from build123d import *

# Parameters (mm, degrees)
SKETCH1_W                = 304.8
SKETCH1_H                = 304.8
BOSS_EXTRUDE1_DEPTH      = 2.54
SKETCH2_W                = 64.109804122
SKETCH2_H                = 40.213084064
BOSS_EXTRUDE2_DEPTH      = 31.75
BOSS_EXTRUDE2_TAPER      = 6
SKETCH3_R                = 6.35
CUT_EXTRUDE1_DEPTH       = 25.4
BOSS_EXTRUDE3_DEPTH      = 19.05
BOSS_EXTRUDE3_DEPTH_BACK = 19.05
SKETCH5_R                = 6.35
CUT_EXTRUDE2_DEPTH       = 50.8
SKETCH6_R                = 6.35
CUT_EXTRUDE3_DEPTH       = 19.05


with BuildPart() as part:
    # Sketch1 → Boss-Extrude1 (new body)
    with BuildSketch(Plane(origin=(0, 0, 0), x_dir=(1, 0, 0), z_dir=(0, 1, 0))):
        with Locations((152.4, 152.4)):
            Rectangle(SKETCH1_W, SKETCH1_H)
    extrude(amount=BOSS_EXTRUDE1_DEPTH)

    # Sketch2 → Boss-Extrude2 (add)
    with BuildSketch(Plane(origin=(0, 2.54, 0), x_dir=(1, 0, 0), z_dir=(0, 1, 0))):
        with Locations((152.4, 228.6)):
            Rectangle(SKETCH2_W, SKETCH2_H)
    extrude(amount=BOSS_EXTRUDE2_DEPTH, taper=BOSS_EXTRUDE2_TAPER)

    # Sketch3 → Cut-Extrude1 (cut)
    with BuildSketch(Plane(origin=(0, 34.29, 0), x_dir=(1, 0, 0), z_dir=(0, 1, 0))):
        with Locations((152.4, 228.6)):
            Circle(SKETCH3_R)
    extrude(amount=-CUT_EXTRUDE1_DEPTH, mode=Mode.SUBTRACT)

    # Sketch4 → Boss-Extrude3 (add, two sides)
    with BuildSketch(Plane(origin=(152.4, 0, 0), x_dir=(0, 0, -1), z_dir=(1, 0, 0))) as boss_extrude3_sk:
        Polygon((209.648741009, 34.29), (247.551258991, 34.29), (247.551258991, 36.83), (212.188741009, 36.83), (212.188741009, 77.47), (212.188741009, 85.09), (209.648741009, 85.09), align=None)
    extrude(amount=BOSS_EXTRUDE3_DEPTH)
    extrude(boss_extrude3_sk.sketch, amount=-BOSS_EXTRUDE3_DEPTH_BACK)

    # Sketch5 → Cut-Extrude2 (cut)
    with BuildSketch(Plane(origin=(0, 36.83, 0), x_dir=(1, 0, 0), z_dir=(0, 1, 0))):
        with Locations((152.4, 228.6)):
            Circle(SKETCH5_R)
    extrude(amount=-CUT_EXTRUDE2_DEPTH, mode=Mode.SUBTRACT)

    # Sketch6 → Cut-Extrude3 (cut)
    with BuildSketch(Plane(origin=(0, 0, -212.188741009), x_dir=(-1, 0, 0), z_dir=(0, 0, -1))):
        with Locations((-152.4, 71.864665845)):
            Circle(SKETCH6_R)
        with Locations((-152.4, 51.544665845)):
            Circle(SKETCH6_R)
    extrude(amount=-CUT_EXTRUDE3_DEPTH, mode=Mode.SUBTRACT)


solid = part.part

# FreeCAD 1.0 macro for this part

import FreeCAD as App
import Part
import Sketcher

V = App.Vector
Q = App.Units.Quantity

doc = App.newDocument("Part")
params = doc.addObject("Spreadsheet::Sheet", "Params")
for row, (alias, value) in enumerate([
    ("sketch1_width", "12 in"),
    ("pad1_length", "0.1 in"),
    ("pad2_length", "1.25 in"),
    ("pad2_taper", "-6 deg"),
    ("sketch3_diameter", "0.5 in"),
    ("pocket1_length", "1 in"),
    ("sketch4_width", "2 in"),
    ("sketch4_width2", "0.1 in"),
    ("pad3_length", "0.75 in"),
    ("pad3_length2", "0.75 in"),
    ("sketch5_diameter", "0.5 in"),
    ("pocket2_length", "2 in"),
    ("sketch6_diameter", "0.5 in"),
    ("pocket3_length", "0.75 in"),
], start=1):
    params.set(f"A{row}", alias)
    params.set(f"B{row}", "=" + value)
    params.setAlias(f"B{row}", alias)

body = doc.addObject("PartDesign::Body", "Body")

sketch1 = doc.addObject("Sketcher::SketchObject", "Sketch")
body.addObject(sketch1)
sketch1.AttachmentSupport = (doc.XZ_Plane, [""])
sketch1.MapMode = "FlatFace"
sketch1.addGeometry(Part.LineSegment(V(0, -304.8, 0), V(0, 0, 0)), False)
sketch1.addGeometry(Part.LineSegment(V(0, 0, 0), V(304.8, 0, 0)), False)
sketch1.addGeometry(Part.LineSegment(V(304.8, 0, 0), V(304.8, -304.8, 0)), False)
sketch1.addGeometry(Part.LineSegment(V(304.8, -304.8, 0), V(0, -304.8, 0)), False)
sketch1.addConstraint(Sketcher.Constraint("Coincident", 0, 2, 1, 1))
sketch1.addConstraint(Sketcher.Constraint("Coincident", 1, 2, 2, 1))
sketch1.addConstraint(Sketcher.Constraint("Coincident", 2, 2, 3, 1))
sketch1.addConstraint(Sketcher.Constraint("Coincident", 3, 2, 0, 1))
sketch1.addConstraint(Sketcher.Constraint("Vertical", 0))
sketch1.addConstraint(Sketcher.Constraint("Horizontal", 1))
sketch1.addConstraint(Sketcher.Constraint("Vertical", 2))
sketch1.addConstraint(Sketcher.Constraint("Horizontal", 3))
sketch1.addConstraint(Sketcher.Constraint("Coincident", 0, 2, -1, 1))
sketch1.addConstraint(Sketcher.Constraint("Equal", 3, 0))
sketch1.addConstraint(Sketcher.Constraint("DistanceX", 1, 1, 1, 2, Q("12 in")))
sketch1.setExpression("Constraints[10]", "Params.sketch1_width")
pad1 = doc.addObject("PartDesign::Pad", "Pad")
body.addObject(pad1)
pad1.Profile = sketch1
pad1.setExpression("Length", "Params.pad1_length")
pad1.Reversed = True

sketch2 = doc.addObject("Sketcher::SketchObject", "Sketch001")
body.addObject(sketch2)
sketch2.AttachmentSupport = (doc.XZ_Plane, [""])
sketch2.MapMode = "FlatFace"
sketch2.AttachmentOffset = App.Placement(V(0, 0, -0.1 * 25.4), App.Rotation())
sketch2.addGeometry(Part.LineSegment(V(120.345098, -248.706542, 0), V(120.345098, -208.493458, 0)), False)
sketch2.addGeometry(Part.LineSegment(V(120.345098, -208.493458, 0), V(184.454902, -208.493458, 0)), False)
sketch2.addGeometry(Part.LineSegment(V(184.454902, -208.493458, 0), V(184.454902, -248.706542, 0)), False)
sketch2.addGeometry(Part.LineSegment(V(184.454902, -248.706542, 0), V(120.345098, -248.706542, 0)), False)
sketch2.addConstraint(Sketcher.Constraint("Coincident", 0, 2, 1, 1))
sketch2.addConstraint(Sketcher.Constraint("Coincident", 1, 2, 2, 1))
sketch2.addConstraint(Sketcher.Constraint("Coincident", 2, 2, 3, 1))
sketch2.addConstraint(Sketcher.Constraint("Coincident", 3, 2, 0, 1))
sketch2.addConstraint(Sketcher.Constraint("Vertical", 0))
sketch2.addConstraint(Sketcher.Constraint("Horizontal", 1))
sketch2.addConstraint(Sketcher.Constraint("Vertical", 2))
sketch2.addConstraint(Sketcher.Constraint("Horizontal", 3))
sketch2.addConstraint(Sketcher.Constraint("DistanceX", 1, 1, 1, 2, Q("64.109804 mm")))
sketch2.addConstraint(Sketcher.Constraint("DistanceY", 0, 1, 0, 2, Q("40.213084 mm")))
sketch2.addConstraint(Sketcher.Constraint("DistanceX", -1, 1, 0, 2, Q("120.345098 mm")))
sketch2.addConstraint(Sketcher.Constraint("DistanceY", 0, 2, -1, 1, Q("208.493458 mm")))
pad2 = doc.addObject("PartDesign::Pad", "Pad001")
body.addObject(pad2)
pad2.Profile = sketch2
pad2.setExpression("Length", "Params.pad2_length")
pad2.Reversed = True
pad2.setExpression("TaperAngle", "Params.pad2_taper")

sketch3 = doc.addObject("Sketcher::SketchObject", "Sketch002")
body.addObject(sketch3)
sketch3.AttachmentSupport = (doc.XZ_Plane, [""])
sketch3.MapMode = "FlatFace"
sketch3.AttachmentOffset = App.Placement(V(0, 0, -1.35 * 25.4), App.Rotation())
sketch3.addGeometry(Part.Circle(V(152.4, -228.6, 0), V(0, 0, 1), 6.35), False)
sketch3.addConstraint(Sketcher.Constraint("Diameter", 0, Q("0.5 in")))
sketch3.addConstraint(Sketcher.Constraint("DistanceX", -1, 1, 0, 3, Q("6 in")))
sketch3.addConstraint(Sketcher.Constraint("DistanceY", 0, 3, -1, 1, Q("9 in")))
sketch3.setExpression("Constraints[0]", "Params.sketch3_diameter")
pocket1 = doc.addObject("PartDesign::Pocket", "Pocket")
body.addObject(pocket1)
pocket1.Profile = sketch3
pocket1.setExpression("Length", "Params.pocket1_length")
pocket1.Reversed = True

sketch4 = doc.addObject("Sketcher::SketchObject", "Sketch003")
body.addObject(sketch4)
sketch4.AttachmentSupport = (doc.YZ_Plane, [""])
sketch4.MapMode = "FlatFace"
sketch4.AttachmentOffset = App.Placement(V(0, 0, 6 * 25.4), App.Rotation())
sketch4.addGeometry(Part.LineSegment(V(34.29, -209.648741, 0), V(34.29, -247.551259, 0)), False)
sketch4.addGeometry(Part.LineSegment(V(34.29, -247.551259, 0), V(36.83, -247.551259, 0)), False)
sketch4.addGeometry(Part.LineSegment(V(36.83, -247.551259, 0), V(36.83, -212.188741, 0)), False)
sketch4.addGeometry(Part.LineSegment(V(36.83, -212.188741, 0), V(85.09, -212.188741, 0)), False)
sketch4.addGeometry(Part.LineSegment(V(85.09, -212.188741, 0), V(85.09, -209.648741, 0)), False)
sketch4.addGeometry(Part.LineSegment(V(85.09, -209.648741, 0), V(34.29, -209.648741, 0)), False)
sketch4.addConstraint(Sketcher.Constraint("Coincident", 0, 2, 1, 1))
sketch4.addConstraint(Sketcher.Constraint("Coincident", 1, 2, 2, 1))
sketch4.addConstraint(Sketcher.Constraint("Coincident", 2, 2, 3, 1))
sketch4.addConstraint(Sketcher.Constraint("Coincident", 3, 2, 4, 1))
sketch4.addConstraint(Sketcher.Constraint("Coincident", 4, 2, 5, 1))
sketch4.addConstraint(Sketcher.Constraint("Coincident", 5, 2, 0, 1))
sketch4.addConstraint(Sketcher.Constraint("Vertical", 0))
sketch4.addConstraint(Sketcher.Constraint("Horizontal", 1))
sketch4.addConstraint(Sketcher.Constraint("Vertical", 2))
sketch4.addConstraint(Sketcher.Constraint("Horizontal", 3))
sketch4.addConstraint(Sketcher.Constraint("Vertical", 4))
sketch4.addConstraint(Sketcher.Constraint("Horizontal", 5))
sketch4.addConstraint(Sketcher.Constraint("Equal", 1, 4))
sketch4.addConstraint(Sketcher.Constraint("DistanceX", 5, 2, 5, 1, Q("2 in")))
sketch4.addConstraint(Sketcher.Constraint("DistanceX", 1, 1, 1, 2, Q("0.1 in")))
sketch4.addConstraint(Sketcher.Constraint("DistanceX", -1, 1, 0, 2, Q("1.35 in")))
sketch4.addConstraint(Sketcher.Constraint("DistanceY", 0, 2, 0, 1, Q("37.902518 mm")))
sketch4.addConstraint(Sketcher.Constraint("DistanceY", 0, 2, -1, 1, Q("247.551259 mm")))
sketch4.setExpression("Constraints[13]", "Params.sketch4_width")
sketch4.setExpression("Constraints[14]", "Params.sketch4_width2")
pad3 = doc.addObject("PartDesign::Pad", "Pad002")
body.addObject(pad3)
pad3.Profile = sketch4
pad3.Type = "TwoLengths"
pad3.setExpression("Length", "Params.pad3_length")
pad3.setExpression("Length2", "Params.pad3_length2")

sketch5 = doc.addObject("Sketcher::SketchObject", "Sketch004")
body.addObject(sketch5)
sketch5.AttachmentSupport = (doc.XZ_Plane, [""])
sketch5.MapMode = "FlatFace"
sketch5.AttachmentOffset = App.Placement(V(0, 0, -1.45 * 25.4), App.Rotation())
sketch5.addGeometry(Part.Circle(V(152.4, -228.6, 0), V(0, 0, 1), 6.35), False)
sketch5.addConstraint(Sketcher.Constraint("Diameter", 0, Q("0.5 in")))
sketch5.addConstraint(Sketcher.Constraint("DistanceX", -1, 1, 0, 3, Q("6 in")))
sketch5.addConstraint(Sketcher.Constraint("DistanceY", 0, 3, -1, 1, Q("9 in")))
sketch5.setExpression("Constraints[0]", "Params.sketch5_diameter")
pocket2 = doc.addObject("PartDesign::Pocket", "Pocket001")
body.addObject(pocket2)
pocket2.Profile = sketch5
pocket2.setExpression("Length", "Params.pocket2_length")
pocket2.Reversed = True

sketch6 = doc.addObject("Sketcher::SketchObject", "Sketch005")
body.addObject(sketch6)
sketch6.AttachmentSupport = (doc.XY_Plane, [""])
sketch6.MapMode = "FlatFace"
sketch6.AttachmentOffset = App.Placement(V(0, 0, -212.188741), App.Rotation())
sketch6.addGeometry(Part.Circle(V(152.4, 71.864666, 0), V(0, 0, 1), 6.35), False)
sketch6.addGeometry(Part.Circle(V(152.4, 51.544666, 0), V(0, 0, 1), 6.35), False)
sketch6.addConstraint(Sketcher.Constraint("Equal", 0, 1))
sketch6.addConstraint(Sketcher.Constraint("Vertical", 0, 3, 1, 3))
sketch6.addConstraint(Sketcher.Constraint("Diameter", 0, Q("0.5 in")))
sketch6.addConstraint(Sketcher.Constraint("DistanceX", -1, 1, 0, 3, Q("6 in")))
sketch6.addConstraint(Sketcher.Constraint("DistanceY", 1, 3, 0, 3, Q("0.8 in")))
sketch6.addConstraint(Sketcher.Constraint("DistanceY", -1, 1, 0, 3, Q("71.864666 mm")))
sketch6.setExpression("Constraints[2]", "Params.sketch6_diameter")
pocket3 = doc.addObject("PartDesign::Pocket", "Pocket002")
body.addObject(pocket3)
pocket3.Profile = sketch6
pocket3.setExpression("Length", "Params.pocket3_length")
pocket3.Reversed = True

doc.recompute()
